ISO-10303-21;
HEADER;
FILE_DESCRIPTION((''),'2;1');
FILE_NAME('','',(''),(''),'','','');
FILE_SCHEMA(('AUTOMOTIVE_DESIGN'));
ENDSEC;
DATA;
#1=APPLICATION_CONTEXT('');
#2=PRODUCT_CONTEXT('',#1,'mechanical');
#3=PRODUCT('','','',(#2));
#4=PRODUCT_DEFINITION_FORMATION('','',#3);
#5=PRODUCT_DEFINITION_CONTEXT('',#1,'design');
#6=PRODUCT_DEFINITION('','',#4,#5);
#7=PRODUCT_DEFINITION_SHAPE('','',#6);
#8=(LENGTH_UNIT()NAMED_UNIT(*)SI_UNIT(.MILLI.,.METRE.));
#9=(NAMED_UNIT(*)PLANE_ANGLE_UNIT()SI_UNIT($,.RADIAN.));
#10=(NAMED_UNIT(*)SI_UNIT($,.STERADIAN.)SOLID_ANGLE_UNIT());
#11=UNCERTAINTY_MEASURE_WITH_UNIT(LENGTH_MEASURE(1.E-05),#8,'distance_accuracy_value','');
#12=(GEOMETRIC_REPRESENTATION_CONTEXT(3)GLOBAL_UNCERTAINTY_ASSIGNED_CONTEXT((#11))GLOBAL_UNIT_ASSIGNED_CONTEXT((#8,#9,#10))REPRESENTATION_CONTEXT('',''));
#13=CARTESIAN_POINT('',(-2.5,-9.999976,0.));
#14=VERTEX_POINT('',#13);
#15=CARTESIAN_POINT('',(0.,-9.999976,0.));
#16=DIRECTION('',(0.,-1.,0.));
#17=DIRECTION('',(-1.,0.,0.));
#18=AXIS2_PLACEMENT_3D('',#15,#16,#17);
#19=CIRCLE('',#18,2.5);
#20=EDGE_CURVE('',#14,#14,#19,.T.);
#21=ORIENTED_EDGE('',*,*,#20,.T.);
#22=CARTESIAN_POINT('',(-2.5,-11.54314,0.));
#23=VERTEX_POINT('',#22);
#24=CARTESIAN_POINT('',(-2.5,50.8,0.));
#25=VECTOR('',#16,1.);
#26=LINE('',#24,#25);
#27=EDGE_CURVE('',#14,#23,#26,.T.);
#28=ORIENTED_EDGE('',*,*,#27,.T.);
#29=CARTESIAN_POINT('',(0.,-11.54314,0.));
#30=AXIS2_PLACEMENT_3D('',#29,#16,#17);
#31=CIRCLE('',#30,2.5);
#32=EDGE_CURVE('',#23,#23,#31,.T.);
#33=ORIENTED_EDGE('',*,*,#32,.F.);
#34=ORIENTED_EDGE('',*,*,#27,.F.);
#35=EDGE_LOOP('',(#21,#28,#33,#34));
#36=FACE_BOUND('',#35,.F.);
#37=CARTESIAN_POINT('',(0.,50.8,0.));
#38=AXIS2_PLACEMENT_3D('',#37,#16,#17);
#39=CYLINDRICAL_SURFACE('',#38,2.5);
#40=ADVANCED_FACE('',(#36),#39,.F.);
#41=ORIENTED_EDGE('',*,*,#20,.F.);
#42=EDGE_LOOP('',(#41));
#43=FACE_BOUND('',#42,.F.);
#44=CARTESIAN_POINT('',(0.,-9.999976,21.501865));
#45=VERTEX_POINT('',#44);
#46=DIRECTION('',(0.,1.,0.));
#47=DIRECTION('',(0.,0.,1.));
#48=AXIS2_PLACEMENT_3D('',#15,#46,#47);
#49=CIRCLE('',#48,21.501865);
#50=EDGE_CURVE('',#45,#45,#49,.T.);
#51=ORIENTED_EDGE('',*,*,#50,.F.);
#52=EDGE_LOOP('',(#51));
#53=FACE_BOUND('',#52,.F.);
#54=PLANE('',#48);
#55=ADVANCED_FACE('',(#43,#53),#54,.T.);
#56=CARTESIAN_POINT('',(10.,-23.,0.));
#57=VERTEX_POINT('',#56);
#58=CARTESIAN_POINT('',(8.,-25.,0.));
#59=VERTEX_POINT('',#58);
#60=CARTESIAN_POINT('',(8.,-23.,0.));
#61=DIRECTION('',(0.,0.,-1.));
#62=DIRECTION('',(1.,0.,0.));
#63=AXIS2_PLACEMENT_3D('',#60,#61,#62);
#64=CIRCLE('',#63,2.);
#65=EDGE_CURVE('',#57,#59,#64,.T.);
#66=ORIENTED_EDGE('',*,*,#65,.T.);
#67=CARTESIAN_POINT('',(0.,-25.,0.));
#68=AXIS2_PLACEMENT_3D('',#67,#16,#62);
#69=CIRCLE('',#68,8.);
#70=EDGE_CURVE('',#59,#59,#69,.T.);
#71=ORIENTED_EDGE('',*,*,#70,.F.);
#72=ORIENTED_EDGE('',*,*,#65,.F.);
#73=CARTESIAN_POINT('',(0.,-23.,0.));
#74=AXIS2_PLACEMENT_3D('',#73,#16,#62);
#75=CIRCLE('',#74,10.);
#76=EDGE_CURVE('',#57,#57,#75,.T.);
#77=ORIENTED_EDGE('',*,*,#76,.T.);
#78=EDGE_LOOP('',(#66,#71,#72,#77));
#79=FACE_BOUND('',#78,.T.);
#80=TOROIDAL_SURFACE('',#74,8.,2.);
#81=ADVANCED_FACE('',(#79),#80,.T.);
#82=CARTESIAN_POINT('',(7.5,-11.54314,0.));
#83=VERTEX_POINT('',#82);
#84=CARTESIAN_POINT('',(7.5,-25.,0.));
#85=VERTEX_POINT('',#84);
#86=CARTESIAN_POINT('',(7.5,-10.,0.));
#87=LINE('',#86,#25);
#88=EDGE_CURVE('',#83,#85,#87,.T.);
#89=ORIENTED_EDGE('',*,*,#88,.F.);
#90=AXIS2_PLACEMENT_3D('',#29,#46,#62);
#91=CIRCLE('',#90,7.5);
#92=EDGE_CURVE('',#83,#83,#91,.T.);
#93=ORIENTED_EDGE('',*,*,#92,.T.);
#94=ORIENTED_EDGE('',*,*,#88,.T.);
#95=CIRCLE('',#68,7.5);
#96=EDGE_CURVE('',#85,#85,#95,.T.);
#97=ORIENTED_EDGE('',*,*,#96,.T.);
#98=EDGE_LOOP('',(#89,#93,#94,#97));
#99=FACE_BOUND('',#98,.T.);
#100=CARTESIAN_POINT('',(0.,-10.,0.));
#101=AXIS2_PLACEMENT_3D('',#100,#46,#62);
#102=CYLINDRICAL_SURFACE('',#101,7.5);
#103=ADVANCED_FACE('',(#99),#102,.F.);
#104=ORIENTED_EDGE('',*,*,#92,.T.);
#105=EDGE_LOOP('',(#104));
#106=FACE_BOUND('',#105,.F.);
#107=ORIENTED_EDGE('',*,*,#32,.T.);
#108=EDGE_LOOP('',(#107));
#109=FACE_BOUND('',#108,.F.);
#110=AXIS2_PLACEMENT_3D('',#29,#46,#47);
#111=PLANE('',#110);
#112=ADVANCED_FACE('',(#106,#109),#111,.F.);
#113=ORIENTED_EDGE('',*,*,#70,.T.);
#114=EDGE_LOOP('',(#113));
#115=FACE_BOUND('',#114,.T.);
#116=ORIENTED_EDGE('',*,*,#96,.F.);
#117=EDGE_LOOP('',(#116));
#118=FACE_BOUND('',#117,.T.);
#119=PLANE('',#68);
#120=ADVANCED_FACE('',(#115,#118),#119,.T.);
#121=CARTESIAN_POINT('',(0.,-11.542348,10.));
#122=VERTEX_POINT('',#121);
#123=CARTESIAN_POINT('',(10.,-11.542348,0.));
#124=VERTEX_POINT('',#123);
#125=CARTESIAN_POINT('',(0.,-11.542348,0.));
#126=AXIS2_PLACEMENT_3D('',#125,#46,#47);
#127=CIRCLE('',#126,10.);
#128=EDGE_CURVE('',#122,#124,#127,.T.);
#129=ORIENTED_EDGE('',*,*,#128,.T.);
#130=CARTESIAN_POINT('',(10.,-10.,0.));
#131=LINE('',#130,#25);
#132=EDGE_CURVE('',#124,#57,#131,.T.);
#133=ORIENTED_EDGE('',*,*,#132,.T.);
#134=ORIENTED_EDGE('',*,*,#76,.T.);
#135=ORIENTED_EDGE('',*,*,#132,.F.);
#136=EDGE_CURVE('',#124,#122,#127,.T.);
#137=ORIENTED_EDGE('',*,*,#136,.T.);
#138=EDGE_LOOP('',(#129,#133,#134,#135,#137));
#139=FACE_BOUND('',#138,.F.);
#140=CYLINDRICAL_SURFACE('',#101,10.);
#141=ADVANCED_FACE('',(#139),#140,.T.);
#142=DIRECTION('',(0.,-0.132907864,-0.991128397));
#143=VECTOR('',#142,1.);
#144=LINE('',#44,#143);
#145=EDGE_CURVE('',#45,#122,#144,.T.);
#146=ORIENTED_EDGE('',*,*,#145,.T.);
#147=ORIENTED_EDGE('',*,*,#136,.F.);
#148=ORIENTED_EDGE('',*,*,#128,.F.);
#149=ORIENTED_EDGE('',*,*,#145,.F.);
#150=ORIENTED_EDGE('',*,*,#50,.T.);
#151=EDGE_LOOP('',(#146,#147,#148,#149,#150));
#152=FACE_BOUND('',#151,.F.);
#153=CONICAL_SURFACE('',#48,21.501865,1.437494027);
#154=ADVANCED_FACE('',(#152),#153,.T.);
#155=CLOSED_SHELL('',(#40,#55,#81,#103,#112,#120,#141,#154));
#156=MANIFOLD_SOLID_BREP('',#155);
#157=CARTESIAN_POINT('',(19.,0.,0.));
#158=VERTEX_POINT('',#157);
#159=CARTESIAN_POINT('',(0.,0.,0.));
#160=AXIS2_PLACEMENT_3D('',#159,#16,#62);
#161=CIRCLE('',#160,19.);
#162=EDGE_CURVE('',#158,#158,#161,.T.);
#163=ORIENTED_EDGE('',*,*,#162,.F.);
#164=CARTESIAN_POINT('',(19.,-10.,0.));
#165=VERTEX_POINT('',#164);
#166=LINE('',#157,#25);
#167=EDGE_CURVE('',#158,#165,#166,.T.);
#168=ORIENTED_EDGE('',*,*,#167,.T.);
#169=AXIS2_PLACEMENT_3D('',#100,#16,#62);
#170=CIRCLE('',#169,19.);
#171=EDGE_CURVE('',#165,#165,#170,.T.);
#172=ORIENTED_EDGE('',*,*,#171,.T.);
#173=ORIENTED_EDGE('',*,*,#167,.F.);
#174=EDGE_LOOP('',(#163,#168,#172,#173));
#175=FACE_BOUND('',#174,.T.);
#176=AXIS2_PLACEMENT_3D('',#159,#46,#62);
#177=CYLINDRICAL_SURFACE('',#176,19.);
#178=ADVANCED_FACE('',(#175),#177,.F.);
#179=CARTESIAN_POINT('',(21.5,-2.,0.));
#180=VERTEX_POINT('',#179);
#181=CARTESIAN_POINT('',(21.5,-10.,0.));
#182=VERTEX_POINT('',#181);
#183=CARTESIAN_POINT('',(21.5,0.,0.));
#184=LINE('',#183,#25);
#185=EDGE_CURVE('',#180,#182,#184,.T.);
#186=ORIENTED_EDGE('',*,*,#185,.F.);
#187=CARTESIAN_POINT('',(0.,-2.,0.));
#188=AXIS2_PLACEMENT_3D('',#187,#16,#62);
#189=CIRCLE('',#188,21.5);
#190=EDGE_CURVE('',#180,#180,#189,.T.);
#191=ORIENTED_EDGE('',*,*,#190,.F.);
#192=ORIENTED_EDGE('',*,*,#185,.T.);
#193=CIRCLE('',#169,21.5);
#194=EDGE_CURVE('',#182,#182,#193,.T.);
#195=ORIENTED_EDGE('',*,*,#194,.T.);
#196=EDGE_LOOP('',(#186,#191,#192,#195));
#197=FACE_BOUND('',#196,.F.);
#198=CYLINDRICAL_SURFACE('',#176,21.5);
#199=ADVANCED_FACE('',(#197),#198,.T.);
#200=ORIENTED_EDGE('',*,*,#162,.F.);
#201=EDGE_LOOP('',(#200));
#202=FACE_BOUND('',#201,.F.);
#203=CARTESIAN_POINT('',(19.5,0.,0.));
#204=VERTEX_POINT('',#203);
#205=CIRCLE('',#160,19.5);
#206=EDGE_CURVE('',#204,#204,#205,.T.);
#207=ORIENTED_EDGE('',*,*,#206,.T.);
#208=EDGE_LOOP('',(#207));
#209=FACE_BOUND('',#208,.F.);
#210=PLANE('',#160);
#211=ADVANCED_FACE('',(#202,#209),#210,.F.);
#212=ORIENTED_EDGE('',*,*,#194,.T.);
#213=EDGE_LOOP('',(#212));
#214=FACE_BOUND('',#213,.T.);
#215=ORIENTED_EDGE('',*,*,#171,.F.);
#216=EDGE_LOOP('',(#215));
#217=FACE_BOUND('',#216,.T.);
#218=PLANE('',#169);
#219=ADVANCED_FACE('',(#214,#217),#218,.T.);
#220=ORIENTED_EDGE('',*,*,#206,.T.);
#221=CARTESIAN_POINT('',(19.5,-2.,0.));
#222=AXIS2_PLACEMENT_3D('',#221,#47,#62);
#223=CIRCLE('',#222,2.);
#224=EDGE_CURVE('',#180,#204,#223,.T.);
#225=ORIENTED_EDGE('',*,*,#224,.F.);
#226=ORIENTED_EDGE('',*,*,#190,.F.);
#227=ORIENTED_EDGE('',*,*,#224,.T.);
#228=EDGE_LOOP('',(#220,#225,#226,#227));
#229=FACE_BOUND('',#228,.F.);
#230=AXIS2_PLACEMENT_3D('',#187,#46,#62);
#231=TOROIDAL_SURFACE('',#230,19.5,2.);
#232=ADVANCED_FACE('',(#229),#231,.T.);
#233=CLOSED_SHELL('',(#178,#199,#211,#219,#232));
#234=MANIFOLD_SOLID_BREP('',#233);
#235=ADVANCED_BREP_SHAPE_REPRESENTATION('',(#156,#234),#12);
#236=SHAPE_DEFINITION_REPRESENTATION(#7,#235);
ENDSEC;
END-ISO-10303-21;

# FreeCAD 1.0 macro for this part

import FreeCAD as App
import Part
import Sketcher


def edges_at(feature, points):
    """Names of the edges that pass closest to the given points."""
    edges = feature.Shape.Edges
    near = lambda p: min(range(len(edges)), key=lambda i: edges[i].distToShape(Part.Vertex(*p))[0])
    return sorted({f"Edge{near(p) + 1}" for p in points})


def add_polygon(sketch, points):
    """Adds a closed chain of lines whose ends are joined by coincident constraints."""
    first, n = sketch.GeometryCount, len(points)
    for a, b in zip(points, points[1:] + points[:1]):
        sketch.addGeometry(Part.LineSegment(App.Vector(*a, 0), App.Vector(*b, 0)), False)
    for i in range(n):
        sketch.addConstraint(Sketcher.Constraint("Coincident", first + i, 2, first + (i + 1) % n, 1))

doc = App.newDocument("Part")
body = doc.addObject("PartDesign::Body", "Body")

# Sketch on XZ plane
sketch1 = doc.addObject("Sketcher::SketchObject", "Sketch")
body.addObject(sketch1)
sketch1.AttachmentSupport = (doc.XZ_Plane, [""])
sketch1.MapMode = "FlatFace"
sketch1.addGeometry(Part.Circle(App.Vector(0, 0, 0), App.Vector(0, 0, 1), 21.5), False)
sketch1.addGeometry(Part.Circle(App.Vector(0, 0, 0), App.Vector(0, 0, 1), 19), False)
sketch1.addConstraint(Sketcher.Constraint("Coincident", 0, 3, -1, 1))
sketch1.addConstraint(Sketcher.Constraint("Coincident", 1, 3, -1, 1))
sketch1.addConstraint(Sketcher.Constraint("Diameter", 0, 43.0))
sketch1.addConstraint(Sketcher.Constraint("Diameter", 1, 38.0))
pad1 = doc.addObject("PartDesign::Pad", "Pad")
body.addObject(pad1)
pad1.Profile = sketch1
pad1.Length = 10
doc.recompute()

fillet = doc.addObject("PartDesign::Fillet", "Fillet")
body.addObject(fillet)
fillet.Base = (pad1, edges_at(pad1, [(-21.5, 0, 0)]))
fillet.Radius = 2
body2 = doc.addObject("PartDesign::Body", "Body001")

# Sketch on YZ plane
sketch2 = doc.addObject("Sketcher::SketchObject", "Sketch001")
body2.addObject(sketch2)
sketch2.AttachmentSupport = (doc.getObject("YZ_Plane001"), [""])
sketch2.MapMode = "FlatFace"
add_polygon(sketch2, [(-11.54314, 0), (-9.999976, 0), (-9.999976, 21.501865), (-11.54314, 9.994091)])  # lines 0-3
sketch2.addConstraint(Sketcher.Constraint("Horizontal", 0))
sketch2.addConstraint(Sketcher.Constraint("Vertical", 1))
sketch2.addConstraint(Sketcher.Constraint("Vertical", 3))
sketch2.addConstraint(Sketcher.Constraint("PointOnObject", 0, 2, -1))
sketch2.addConstraint(Sketcher.Constraint("DistanceY", 3, 2, 3, 1, 9.994091))
sketch2.addConstraint(Sketcher.Constraint("Distance", 2, 11.61078))
sketch2.addConstraint(Sketcher.Constraint("DistanceX", 0, 1, 0, 2, 1.543164))
sketch2.addConstraint(Sketcher.Constraint("DistanceX", 2, 2, -1, 1, 11.54314))
revolution = doc.addObject("PartDesign::Revolution", "Revolution")
body2.addObject(revolution)
revolution.Profile = sketch2
revolution.ReferenceAxis = (sketch2, ["H_Axis"])
revolution.Angle = 360

# Sketch on XZ plane
sketch3 = doc.addObject("Sketcher::SketchObject", "Sketch002")
body2.addObject(sketch3)
sketch3.AttachmentSupport = (doc.getObject("XZ_Plane001"), [""])
sketch3.MapMode = "FlatFace"
sketch3.AttachmentOffset = App.Placement(App.Vector(0, 0, 10), App.Rotation())
sketch3.addGeometry(Part.Circle(App.Vector(0, 0, 0), App.Vector(0, 0, 1), 10), False)
sketch3.addGeometry(Part.Circle(App.Vector(0, 0, 0), App.Vector(0, 0, 1), 7.5), False)
sketch3.addConstraint(Sketcher.Constraint("Coincident", 0, 3, -1, 1))
sketch3.addConstraint(Sketcher.Constraint("Coincident", 1, 3, -1, 1))
sketch3.addConstraint(Sketcher.Constraint("Diameter", 0, 20.0))
sketch3.addConstraint(Sketcher.Constraint("Diameter", 1, 15.0))
pad2 = doc.addObject("PartDesign::Pad", "Pad001")
body2.addObject(pad2)
pad2.Profile = sketch3
pad2.Length = 15

# Sketch on XZ plane
sketch4 = doc.addObject("Sketcher::SketchObject", "Sketch003")
body2.addObject(sketch4)
sketch4.AttachmentSupport = (doc.getObject("XZ_Plane001"), [""])
sketch4.MapMode = "FlatFace"
sketch4.addGeometry(Part.Circle(App.Vector(0, 0, 0), App.Vector(0, 0, 1), 2.5), False)
sketch4.addConstraint(Sketcher.Constraint("Coincident", 0, 3, -1, 1))
sketch4.addConstraint(Sketcher.Constraint("Diameter", 0, 5.0))
doc.recompute()
hole = doc.addObject("PartDesign::Hole", "Hole")
body2.addObject(hole)
hole.Profile = sketch4
hole.ThreadType = "None"
hole.Diameter = 5
hole.DepthType = "Dimension"
hole.Depth = 50.8
hole.DrillPoint = "Flat"
hole.Reversed = True
doc.recompute()

fillet2 = doc.addObject("PartDesign::Fillet", "Fillet001")
body2.addObject(fillet2)
fillet2.Base = (hole, edges_at(hole, [(-10, -25, 0)]))
fillet2.Radius = 2

doc.recompute()
